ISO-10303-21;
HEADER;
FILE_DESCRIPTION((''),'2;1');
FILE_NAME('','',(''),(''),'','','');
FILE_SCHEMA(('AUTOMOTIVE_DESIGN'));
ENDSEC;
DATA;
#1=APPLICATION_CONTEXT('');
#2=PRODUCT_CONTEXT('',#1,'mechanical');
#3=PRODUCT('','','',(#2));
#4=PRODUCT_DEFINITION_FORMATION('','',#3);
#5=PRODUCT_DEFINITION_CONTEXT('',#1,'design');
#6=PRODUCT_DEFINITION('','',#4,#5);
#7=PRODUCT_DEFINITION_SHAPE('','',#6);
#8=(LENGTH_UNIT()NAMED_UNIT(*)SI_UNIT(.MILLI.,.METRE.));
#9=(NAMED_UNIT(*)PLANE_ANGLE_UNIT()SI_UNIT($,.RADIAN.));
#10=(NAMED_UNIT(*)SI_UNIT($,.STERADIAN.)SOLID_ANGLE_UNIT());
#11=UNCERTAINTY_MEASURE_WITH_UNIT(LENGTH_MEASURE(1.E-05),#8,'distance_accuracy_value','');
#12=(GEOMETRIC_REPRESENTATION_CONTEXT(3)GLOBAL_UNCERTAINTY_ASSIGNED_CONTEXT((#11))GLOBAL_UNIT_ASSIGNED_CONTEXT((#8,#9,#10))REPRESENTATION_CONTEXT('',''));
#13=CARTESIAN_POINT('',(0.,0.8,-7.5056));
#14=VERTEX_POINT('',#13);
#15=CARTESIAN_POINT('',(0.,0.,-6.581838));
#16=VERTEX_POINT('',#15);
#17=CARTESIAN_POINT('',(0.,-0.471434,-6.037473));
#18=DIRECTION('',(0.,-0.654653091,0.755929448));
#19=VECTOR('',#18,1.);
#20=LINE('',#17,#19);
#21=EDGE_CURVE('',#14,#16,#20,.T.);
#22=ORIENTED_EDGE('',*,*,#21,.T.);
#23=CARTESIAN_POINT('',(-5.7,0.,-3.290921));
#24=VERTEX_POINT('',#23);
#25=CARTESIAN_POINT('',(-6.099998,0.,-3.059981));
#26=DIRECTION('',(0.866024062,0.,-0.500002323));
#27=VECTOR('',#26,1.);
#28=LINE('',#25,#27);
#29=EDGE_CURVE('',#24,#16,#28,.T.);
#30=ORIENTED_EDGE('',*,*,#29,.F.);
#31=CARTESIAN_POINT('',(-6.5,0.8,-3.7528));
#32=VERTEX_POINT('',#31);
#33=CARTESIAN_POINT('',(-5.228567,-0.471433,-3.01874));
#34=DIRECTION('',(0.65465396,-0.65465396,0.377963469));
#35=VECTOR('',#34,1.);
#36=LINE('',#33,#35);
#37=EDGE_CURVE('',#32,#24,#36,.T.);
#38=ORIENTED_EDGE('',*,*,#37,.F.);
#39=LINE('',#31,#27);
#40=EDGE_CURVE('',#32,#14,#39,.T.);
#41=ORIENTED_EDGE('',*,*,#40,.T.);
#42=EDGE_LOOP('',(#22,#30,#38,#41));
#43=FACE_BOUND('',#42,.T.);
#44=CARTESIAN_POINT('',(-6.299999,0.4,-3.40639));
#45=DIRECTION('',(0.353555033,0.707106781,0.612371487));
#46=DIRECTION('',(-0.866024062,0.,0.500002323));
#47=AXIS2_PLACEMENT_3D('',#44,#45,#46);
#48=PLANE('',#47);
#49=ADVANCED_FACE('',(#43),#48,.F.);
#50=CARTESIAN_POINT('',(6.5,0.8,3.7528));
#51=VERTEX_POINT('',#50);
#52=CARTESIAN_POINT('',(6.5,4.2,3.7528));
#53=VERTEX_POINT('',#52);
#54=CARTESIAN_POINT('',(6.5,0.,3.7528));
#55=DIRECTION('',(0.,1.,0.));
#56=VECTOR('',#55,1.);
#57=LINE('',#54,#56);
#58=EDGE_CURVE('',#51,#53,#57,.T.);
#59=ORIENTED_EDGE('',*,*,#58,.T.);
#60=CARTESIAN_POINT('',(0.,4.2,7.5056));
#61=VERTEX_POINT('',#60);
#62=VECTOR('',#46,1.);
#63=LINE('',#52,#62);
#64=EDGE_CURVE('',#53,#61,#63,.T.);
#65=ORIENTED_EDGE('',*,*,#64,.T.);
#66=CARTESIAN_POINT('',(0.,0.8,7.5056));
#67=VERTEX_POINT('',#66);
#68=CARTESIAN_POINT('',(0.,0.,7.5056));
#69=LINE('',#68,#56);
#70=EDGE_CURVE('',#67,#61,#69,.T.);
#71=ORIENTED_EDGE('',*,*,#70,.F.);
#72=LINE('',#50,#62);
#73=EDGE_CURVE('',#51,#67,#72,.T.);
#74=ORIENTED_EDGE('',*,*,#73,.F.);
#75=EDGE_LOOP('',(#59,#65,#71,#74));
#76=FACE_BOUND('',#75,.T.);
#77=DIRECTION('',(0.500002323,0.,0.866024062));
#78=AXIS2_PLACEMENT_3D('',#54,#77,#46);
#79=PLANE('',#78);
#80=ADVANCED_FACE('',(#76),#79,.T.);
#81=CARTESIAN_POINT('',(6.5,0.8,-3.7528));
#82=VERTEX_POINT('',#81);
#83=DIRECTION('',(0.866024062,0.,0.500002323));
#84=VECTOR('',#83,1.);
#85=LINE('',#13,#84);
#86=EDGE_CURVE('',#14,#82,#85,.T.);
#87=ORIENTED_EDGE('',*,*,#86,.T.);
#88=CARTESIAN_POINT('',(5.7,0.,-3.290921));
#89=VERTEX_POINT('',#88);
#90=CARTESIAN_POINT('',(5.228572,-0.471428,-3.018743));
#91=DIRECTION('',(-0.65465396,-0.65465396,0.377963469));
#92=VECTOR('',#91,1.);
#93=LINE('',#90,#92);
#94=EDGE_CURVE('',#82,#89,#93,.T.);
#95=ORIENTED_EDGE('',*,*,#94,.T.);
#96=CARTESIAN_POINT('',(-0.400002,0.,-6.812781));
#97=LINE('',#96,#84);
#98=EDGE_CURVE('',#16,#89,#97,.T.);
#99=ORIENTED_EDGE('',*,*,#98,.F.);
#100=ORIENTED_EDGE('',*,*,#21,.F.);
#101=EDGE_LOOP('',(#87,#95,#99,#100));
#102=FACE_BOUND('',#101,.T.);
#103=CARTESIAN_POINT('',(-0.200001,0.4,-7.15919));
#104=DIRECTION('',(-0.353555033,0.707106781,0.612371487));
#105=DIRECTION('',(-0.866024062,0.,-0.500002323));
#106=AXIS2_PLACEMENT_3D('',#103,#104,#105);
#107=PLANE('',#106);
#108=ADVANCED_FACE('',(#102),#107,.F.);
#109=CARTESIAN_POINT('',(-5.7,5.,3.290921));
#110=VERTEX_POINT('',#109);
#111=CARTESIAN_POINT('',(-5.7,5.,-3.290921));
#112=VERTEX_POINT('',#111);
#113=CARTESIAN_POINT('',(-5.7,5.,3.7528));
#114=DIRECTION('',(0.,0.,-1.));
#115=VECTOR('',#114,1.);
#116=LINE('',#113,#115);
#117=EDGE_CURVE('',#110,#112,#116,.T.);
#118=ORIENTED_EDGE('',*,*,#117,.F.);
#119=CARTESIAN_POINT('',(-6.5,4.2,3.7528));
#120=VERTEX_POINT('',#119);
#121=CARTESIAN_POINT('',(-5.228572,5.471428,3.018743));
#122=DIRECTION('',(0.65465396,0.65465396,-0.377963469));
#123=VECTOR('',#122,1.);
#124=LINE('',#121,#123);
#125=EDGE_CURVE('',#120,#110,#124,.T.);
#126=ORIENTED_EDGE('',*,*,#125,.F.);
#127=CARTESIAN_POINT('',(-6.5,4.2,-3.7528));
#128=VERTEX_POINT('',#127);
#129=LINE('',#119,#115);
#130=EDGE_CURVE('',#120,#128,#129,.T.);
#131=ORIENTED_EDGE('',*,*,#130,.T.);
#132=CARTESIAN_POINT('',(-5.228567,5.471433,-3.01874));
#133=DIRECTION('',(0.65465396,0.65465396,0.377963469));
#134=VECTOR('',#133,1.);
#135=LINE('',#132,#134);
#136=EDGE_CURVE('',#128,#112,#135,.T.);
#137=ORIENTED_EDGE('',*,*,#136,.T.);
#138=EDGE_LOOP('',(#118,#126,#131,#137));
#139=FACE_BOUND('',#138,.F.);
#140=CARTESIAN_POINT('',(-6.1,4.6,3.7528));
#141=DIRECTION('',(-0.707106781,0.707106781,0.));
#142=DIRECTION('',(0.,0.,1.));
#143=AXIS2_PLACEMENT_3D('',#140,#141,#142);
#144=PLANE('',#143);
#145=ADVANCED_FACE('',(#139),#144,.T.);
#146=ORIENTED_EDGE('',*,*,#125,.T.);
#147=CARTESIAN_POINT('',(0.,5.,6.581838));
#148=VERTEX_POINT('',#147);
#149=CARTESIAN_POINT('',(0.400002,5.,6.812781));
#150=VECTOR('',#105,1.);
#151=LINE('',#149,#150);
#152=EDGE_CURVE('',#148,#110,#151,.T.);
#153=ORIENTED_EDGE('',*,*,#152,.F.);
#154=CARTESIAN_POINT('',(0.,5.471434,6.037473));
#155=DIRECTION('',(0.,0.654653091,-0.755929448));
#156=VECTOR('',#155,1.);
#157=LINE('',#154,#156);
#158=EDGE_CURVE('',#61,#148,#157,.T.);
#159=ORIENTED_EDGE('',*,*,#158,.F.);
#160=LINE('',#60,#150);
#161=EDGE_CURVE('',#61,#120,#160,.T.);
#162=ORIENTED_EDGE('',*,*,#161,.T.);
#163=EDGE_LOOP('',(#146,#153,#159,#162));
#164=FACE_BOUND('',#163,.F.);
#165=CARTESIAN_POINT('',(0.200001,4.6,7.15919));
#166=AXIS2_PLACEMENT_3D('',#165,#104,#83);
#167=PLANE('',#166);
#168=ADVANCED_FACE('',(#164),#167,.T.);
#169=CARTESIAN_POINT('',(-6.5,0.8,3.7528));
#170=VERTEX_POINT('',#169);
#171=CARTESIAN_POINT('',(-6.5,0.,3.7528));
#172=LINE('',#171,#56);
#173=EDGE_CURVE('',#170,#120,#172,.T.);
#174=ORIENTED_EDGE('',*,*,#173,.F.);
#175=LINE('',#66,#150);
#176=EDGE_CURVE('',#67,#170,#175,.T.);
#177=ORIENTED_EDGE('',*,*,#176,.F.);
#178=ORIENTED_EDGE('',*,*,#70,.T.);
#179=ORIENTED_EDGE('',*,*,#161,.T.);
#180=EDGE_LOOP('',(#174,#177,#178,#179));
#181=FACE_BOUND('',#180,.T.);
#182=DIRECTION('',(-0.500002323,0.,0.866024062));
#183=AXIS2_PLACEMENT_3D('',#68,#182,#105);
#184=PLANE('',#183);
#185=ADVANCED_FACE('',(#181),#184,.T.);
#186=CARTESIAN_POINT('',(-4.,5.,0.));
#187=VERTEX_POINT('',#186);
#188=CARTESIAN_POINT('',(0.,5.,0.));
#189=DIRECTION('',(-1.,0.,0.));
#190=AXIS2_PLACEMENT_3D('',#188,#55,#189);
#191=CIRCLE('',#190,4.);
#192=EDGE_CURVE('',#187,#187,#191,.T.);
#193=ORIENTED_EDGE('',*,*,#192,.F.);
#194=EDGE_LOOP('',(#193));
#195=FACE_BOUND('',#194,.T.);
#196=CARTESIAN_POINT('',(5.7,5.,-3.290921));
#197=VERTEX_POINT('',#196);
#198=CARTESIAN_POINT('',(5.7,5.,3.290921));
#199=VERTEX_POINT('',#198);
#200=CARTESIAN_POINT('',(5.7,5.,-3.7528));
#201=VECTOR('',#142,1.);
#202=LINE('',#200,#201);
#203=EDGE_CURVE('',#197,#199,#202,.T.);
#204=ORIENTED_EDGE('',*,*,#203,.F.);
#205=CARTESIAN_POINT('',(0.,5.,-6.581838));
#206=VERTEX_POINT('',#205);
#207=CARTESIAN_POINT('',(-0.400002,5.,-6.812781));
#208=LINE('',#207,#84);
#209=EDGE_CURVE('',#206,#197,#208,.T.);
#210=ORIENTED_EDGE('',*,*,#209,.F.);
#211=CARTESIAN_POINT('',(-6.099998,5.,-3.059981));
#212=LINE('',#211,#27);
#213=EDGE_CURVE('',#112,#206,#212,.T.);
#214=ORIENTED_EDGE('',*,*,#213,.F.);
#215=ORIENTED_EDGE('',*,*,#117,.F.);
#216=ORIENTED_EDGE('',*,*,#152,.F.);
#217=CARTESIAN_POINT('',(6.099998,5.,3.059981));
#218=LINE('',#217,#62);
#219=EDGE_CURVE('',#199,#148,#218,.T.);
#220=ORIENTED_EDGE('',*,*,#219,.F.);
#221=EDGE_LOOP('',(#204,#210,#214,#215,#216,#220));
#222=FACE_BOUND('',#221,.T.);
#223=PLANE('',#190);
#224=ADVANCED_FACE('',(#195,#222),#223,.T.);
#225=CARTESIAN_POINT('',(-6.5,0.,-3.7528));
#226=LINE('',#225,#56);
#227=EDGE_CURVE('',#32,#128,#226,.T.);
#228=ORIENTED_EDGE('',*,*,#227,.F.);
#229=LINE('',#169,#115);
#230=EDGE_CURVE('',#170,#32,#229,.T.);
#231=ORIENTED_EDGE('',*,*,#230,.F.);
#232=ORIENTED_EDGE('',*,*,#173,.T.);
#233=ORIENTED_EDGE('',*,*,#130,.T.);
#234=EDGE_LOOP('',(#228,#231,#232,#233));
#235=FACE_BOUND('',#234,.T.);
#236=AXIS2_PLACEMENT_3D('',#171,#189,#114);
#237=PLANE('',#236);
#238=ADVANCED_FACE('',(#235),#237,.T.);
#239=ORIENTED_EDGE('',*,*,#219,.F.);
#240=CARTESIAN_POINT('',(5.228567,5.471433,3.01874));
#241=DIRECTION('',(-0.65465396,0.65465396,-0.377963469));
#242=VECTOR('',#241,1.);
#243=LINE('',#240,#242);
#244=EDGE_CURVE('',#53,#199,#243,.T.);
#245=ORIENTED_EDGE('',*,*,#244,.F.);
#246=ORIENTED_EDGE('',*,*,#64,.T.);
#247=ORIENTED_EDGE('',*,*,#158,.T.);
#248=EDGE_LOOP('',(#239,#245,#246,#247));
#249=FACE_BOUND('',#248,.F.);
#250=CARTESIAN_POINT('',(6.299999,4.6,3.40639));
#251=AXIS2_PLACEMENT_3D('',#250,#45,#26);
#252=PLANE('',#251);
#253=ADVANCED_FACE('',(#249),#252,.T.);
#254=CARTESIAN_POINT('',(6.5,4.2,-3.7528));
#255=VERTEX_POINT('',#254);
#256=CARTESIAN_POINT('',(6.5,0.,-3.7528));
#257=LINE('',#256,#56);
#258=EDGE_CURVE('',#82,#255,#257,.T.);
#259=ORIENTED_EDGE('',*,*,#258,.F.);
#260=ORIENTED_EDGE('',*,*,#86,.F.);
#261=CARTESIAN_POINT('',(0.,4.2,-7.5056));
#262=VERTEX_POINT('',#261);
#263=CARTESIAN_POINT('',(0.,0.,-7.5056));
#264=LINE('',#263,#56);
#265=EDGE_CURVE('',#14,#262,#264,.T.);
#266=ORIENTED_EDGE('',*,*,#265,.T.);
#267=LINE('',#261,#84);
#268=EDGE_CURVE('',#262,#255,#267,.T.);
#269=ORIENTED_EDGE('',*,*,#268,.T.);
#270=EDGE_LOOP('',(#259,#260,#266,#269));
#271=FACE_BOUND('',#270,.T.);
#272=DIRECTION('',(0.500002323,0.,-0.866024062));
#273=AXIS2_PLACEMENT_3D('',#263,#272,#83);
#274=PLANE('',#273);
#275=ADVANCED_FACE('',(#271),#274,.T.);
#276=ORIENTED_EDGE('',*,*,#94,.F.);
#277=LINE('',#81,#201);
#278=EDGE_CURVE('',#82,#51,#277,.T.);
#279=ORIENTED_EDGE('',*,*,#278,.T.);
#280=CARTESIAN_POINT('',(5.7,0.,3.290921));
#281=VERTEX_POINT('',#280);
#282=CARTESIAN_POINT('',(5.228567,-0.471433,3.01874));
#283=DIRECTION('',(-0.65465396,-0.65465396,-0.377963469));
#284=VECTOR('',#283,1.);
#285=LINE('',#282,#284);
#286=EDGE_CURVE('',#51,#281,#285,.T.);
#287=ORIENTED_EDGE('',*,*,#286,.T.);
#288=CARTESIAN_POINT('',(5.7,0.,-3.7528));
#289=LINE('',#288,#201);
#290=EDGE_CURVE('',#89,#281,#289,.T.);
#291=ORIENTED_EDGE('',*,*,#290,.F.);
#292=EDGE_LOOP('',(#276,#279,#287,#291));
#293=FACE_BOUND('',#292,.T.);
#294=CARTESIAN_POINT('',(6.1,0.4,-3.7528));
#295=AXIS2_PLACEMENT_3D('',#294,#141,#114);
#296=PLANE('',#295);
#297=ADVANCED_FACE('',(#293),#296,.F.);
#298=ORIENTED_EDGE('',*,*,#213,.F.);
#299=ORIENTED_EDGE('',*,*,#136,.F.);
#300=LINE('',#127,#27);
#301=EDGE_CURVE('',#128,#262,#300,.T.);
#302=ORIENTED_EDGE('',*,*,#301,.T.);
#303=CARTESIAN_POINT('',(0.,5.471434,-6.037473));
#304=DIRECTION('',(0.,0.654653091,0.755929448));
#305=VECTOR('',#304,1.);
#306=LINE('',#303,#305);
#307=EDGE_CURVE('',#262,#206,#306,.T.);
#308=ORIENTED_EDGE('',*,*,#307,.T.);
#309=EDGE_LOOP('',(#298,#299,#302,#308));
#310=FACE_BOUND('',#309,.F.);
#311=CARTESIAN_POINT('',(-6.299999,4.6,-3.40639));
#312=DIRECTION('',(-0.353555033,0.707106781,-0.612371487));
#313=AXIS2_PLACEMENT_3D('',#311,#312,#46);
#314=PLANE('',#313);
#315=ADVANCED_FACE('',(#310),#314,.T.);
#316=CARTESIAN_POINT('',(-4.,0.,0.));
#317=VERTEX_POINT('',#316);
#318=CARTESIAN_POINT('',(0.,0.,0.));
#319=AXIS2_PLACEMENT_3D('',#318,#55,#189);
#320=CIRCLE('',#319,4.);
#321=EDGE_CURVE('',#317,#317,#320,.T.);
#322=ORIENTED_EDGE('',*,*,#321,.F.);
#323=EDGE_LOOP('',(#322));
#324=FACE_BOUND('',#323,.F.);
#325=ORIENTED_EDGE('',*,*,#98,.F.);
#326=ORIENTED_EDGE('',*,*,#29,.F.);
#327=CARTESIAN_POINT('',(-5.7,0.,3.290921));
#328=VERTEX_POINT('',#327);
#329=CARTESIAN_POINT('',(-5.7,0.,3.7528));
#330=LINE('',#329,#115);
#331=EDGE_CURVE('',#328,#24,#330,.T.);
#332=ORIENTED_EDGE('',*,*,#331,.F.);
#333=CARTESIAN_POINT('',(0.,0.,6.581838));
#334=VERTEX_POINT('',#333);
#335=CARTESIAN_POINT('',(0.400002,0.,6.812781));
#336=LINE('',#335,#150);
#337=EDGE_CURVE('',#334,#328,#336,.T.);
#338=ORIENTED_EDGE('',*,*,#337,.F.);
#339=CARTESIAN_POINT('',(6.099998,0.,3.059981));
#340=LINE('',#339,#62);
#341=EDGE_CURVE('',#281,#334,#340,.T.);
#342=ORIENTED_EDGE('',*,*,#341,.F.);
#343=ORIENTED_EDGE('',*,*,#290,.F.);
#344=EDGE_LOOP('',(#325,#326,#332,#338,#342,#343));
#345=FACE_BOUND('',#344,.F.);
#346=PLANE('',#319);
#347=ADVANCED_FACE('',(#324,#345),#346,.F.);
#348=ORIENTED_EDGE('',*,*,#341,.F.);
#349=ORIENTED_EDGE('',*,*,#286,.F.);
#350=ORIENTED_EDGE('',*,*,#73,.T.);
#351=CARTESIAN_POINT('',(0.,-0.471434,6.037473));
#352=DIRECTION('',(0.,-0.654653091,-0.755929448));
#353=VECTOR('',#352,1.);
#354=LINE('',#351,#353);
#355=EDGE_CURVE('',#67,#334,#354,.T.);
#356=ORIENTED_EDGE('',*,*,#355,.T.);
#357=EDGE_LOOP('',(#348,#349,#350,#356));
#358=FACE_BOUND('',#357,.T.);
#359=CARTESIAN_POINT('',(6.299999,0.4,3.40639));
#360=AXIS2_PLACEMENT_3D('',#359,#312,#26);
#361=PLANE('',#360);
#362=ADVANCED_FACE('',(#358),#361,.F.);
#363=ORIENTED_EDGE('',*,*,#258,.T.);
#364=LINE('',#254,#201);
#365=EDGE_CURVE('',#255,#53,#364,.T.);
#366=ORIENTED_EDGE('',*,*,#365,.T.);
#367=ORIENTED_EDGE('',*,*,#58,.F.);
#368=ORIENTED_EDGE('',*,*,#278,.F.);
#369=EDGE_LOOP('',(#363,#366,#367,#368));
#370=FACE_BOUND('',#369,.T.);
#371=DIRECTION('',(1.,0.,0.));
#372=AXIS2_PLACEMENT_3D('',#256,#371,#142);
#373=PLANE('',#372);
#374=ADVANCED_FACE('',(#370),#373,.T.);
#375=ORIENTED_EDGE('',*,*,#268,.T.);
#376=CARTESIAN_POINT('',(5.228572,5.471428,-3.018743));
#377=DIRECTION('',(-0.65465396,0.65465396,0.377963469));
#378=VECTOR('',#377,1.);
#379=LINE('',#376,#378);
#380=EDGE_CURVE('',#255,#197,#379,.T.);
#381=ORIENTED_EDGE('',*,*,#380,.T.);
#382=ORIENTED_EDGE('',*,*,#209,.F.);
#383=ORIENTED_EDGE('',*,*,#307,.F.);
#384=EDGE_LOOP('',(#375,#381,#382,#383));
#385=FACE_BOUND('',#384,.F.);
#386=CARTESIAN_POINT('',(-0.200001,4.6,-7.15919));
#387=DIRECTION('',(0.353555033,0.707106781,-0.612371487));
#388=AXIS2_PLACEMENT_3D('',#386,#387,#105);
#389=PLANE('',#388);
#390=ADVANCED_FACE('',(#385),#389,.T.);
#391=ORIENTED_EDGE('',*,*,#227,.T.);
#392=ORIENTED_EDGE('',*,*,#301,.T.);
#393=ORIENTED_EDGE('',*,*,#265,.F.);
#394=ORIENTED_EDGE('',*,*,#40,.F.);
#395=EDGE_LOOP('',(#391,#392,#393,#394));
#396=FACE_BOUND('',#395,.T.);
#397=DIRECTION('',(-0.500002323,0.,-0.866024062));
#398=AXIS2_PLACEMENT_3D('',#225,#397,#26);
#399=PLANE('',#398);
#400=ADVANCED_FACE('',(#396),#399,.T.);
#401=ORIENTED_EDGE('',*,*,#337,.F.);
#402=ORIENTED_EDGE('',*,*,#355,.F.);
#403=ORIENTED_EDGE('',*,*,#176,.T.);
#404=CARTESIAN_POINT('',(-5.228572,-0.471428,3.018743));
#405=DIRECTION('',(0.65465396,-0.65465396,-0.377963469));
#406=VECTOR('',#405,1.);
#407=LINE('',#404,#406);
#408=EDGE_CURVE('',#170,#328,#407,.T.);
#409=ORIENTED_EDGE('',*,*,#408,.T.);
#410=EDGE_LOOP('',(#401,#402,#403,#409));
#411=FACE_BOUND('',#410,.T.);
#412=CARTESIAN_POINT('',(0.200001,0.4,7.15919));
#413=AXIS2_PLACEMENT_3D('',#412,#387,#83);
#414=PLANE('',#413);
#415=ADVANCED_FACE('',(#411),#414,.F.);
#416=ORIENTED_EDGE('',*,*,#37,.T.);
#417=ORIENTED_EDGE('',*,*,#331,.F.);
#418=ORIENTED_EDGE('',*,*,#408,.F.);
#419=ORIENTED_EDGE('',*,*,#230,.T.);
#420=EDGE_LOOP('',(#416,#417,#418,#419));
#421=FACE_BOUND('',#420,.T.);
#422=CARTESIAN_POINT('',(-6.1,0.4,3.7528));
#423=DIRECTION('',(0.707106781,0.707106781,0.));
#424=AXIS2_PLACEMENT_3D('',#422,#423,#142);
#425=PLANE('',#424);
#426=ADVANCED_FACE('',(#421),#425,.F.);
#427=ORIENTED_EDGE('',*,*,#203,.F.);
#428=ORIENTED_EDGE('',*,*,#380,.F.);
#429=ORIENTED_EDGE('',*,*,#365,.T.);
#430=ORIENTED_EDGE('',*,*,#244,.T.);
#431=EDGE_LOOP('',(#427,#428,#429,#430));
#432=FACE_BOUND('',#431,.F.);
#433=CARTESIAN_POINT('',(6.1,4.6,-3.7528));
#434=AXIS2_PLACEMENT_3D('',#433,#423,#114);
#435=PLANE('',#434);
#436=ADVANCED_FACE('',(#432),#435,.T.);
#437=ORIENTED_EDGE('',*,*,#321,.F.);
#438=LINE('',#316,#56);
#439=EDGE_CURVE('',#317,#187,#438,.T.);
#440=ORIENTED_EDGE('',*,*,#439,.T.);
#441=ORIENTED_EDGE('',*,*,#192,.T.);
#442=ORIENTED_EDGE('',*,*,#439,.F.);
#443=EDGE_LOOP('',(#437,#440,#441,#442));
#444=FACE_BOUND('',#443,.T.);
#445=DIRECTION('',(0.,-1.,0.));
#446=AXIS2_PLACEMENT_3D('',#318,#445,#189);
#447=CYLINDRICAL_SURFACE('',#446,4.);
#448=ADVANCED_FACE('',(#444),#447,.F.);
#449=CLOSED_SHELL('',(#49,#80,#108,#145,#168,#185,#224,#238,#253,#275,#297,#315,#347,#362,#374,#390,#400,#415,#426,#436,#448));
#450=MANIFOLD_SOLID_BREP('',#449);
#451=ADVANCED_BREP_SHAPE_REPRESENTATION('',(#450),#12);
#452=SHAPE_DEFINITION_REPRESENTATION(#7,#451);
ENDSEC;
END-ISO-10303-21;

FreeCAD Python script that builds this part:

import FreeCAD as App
import Part
import Sketcher
Q = App.Units.Quantity


def edges_at(feature, points):
    """Names of the edges that pass closest to the given points."""
    edges = feature.Shape.Edges
    near = lambda p: min(range(len(edges)), key=lambda i: edges[i].distToShape(Part.Vertex(*p))[0])
    return sorted({f"Edge{near(p) + 1}" for p in points})

doc = App.newDocument("Part")
body = doc.addObject("PartDesign::Body", "Body")

# Sketch on XZ plane
sketch1 = doc.addObject("Sketcher::SketchObject", "Sketch")
body.addObject(sketch1)
sketch1.AttachmentSupport = (doc.XZ_Plane, [""])
sketch1.MapMode = "FlatFace"
sketch1.addGeometry([
    Part.LineSegment(App.Vector(0, -7.5, 0), App.Vector(-6.5, -3.8, 0)),  # 0
    Part.LineSegment(App.Vector(-6.5, -3.8, 0), App.Vector(-6.5, 3.8, 0)),  # 1
    Part.LineSegment(App.Vector(-6.5, 3.8, 0), App.Vector(0, 7.5, 0)),  # 2
    Part.LineSegment(App.Vector(0, 7.5, 0), App.Vector(6.5, 3.8, 0)),  # 3
    Part.LineSegment(App.Vector(6.5, 3.8, 0), App.Vector(6.5, -3.8, 0)),  # 4
    Part.LineSegment(App.Vector(6.5, -3.8, 0), App.Vector(0, -7.5, 0)),  # 5
    Part.Circle(App.Vector(0, 0, 0), App.Vector(0, 0, 1), 4),  # 6
], False)
sketch1.addConstraint([
    Sketcher.Constraint("Coincident", 0, 2, 1, 1),
    Sketcher.Constraint("Coincident", 1, 2, 2, 1),
    Sketcher.Constraint("Coincident", 2, 2, 3, 1),
    Sketcher.Constraint("Coincident", 3, 2, 4, 1),
    Sketcher.Constraint("Coincident", 4, 2, 5, 1),
    Sketcher.Constraint("Coincident", 5, 2, 0, 1),
    Sketcher.Constraint("Vertical", 1),
    Sketcher.Constraint("Vertical", 4),
    Sketcher.Constraint("Coincident", 6, 3, -1, 1),
    Sketcher.Constraint("Symmetric", 0, 2, 3, 2, -1, 1),
    Sketcher.Constraint("Symmetric", 2, 2, 5, 2, -1, 1),
    Sketcher.Constraint("PointOnObject", 2, 2, -2),
    Sketcher.Constraint("Parallel", 2, 5),
    Sketcher.Constraint("Horizontal", 1, 2, 3, 2),
    Sketcher.Constraint("Diameter", 6, 8.0),
    Sketcher.Constraint("DistanceX", 1, 2, 3, 2, 13.0),
    Sketcher.Constraint("Angle", 0, Q("149.9998 deg")),
    Sketcher.Constraint("DistanceY", 1, 1, 1, 2, 7.5056),
])
pad1 = doc.addObject("PartDesign::Pad", "Pad")
body.addObject(pad1)
pad1.Profile = sketch1
pad1.Length = 5
pad1.Reversed = True
doc.recompute()

chamfer = doc.addObject("PartDesign::Chamfer", "Chamfer")
body.addObject(chamfer)
chamfer.Base = (pad1, edges_at(pad1, [
    (-3.25, 5, 5.629),
    (-6.5, 5, 0),
    (-3.25, 5, -5.629),
    (3.25, 5, -5.629),
    (6.5, 5, 0),
    (3.25, 5, 5.629),
    (-3.25, 0, 5.629),
    (3.25, 0, 5.629),
    (6.5, 0, 0),
    (3.25, 0, -5.629),
    (-3.25, 0, -5.629),
    (-6.5, 0, 0),
]))
chamfer.Size = 0.8

doc.recompute()
